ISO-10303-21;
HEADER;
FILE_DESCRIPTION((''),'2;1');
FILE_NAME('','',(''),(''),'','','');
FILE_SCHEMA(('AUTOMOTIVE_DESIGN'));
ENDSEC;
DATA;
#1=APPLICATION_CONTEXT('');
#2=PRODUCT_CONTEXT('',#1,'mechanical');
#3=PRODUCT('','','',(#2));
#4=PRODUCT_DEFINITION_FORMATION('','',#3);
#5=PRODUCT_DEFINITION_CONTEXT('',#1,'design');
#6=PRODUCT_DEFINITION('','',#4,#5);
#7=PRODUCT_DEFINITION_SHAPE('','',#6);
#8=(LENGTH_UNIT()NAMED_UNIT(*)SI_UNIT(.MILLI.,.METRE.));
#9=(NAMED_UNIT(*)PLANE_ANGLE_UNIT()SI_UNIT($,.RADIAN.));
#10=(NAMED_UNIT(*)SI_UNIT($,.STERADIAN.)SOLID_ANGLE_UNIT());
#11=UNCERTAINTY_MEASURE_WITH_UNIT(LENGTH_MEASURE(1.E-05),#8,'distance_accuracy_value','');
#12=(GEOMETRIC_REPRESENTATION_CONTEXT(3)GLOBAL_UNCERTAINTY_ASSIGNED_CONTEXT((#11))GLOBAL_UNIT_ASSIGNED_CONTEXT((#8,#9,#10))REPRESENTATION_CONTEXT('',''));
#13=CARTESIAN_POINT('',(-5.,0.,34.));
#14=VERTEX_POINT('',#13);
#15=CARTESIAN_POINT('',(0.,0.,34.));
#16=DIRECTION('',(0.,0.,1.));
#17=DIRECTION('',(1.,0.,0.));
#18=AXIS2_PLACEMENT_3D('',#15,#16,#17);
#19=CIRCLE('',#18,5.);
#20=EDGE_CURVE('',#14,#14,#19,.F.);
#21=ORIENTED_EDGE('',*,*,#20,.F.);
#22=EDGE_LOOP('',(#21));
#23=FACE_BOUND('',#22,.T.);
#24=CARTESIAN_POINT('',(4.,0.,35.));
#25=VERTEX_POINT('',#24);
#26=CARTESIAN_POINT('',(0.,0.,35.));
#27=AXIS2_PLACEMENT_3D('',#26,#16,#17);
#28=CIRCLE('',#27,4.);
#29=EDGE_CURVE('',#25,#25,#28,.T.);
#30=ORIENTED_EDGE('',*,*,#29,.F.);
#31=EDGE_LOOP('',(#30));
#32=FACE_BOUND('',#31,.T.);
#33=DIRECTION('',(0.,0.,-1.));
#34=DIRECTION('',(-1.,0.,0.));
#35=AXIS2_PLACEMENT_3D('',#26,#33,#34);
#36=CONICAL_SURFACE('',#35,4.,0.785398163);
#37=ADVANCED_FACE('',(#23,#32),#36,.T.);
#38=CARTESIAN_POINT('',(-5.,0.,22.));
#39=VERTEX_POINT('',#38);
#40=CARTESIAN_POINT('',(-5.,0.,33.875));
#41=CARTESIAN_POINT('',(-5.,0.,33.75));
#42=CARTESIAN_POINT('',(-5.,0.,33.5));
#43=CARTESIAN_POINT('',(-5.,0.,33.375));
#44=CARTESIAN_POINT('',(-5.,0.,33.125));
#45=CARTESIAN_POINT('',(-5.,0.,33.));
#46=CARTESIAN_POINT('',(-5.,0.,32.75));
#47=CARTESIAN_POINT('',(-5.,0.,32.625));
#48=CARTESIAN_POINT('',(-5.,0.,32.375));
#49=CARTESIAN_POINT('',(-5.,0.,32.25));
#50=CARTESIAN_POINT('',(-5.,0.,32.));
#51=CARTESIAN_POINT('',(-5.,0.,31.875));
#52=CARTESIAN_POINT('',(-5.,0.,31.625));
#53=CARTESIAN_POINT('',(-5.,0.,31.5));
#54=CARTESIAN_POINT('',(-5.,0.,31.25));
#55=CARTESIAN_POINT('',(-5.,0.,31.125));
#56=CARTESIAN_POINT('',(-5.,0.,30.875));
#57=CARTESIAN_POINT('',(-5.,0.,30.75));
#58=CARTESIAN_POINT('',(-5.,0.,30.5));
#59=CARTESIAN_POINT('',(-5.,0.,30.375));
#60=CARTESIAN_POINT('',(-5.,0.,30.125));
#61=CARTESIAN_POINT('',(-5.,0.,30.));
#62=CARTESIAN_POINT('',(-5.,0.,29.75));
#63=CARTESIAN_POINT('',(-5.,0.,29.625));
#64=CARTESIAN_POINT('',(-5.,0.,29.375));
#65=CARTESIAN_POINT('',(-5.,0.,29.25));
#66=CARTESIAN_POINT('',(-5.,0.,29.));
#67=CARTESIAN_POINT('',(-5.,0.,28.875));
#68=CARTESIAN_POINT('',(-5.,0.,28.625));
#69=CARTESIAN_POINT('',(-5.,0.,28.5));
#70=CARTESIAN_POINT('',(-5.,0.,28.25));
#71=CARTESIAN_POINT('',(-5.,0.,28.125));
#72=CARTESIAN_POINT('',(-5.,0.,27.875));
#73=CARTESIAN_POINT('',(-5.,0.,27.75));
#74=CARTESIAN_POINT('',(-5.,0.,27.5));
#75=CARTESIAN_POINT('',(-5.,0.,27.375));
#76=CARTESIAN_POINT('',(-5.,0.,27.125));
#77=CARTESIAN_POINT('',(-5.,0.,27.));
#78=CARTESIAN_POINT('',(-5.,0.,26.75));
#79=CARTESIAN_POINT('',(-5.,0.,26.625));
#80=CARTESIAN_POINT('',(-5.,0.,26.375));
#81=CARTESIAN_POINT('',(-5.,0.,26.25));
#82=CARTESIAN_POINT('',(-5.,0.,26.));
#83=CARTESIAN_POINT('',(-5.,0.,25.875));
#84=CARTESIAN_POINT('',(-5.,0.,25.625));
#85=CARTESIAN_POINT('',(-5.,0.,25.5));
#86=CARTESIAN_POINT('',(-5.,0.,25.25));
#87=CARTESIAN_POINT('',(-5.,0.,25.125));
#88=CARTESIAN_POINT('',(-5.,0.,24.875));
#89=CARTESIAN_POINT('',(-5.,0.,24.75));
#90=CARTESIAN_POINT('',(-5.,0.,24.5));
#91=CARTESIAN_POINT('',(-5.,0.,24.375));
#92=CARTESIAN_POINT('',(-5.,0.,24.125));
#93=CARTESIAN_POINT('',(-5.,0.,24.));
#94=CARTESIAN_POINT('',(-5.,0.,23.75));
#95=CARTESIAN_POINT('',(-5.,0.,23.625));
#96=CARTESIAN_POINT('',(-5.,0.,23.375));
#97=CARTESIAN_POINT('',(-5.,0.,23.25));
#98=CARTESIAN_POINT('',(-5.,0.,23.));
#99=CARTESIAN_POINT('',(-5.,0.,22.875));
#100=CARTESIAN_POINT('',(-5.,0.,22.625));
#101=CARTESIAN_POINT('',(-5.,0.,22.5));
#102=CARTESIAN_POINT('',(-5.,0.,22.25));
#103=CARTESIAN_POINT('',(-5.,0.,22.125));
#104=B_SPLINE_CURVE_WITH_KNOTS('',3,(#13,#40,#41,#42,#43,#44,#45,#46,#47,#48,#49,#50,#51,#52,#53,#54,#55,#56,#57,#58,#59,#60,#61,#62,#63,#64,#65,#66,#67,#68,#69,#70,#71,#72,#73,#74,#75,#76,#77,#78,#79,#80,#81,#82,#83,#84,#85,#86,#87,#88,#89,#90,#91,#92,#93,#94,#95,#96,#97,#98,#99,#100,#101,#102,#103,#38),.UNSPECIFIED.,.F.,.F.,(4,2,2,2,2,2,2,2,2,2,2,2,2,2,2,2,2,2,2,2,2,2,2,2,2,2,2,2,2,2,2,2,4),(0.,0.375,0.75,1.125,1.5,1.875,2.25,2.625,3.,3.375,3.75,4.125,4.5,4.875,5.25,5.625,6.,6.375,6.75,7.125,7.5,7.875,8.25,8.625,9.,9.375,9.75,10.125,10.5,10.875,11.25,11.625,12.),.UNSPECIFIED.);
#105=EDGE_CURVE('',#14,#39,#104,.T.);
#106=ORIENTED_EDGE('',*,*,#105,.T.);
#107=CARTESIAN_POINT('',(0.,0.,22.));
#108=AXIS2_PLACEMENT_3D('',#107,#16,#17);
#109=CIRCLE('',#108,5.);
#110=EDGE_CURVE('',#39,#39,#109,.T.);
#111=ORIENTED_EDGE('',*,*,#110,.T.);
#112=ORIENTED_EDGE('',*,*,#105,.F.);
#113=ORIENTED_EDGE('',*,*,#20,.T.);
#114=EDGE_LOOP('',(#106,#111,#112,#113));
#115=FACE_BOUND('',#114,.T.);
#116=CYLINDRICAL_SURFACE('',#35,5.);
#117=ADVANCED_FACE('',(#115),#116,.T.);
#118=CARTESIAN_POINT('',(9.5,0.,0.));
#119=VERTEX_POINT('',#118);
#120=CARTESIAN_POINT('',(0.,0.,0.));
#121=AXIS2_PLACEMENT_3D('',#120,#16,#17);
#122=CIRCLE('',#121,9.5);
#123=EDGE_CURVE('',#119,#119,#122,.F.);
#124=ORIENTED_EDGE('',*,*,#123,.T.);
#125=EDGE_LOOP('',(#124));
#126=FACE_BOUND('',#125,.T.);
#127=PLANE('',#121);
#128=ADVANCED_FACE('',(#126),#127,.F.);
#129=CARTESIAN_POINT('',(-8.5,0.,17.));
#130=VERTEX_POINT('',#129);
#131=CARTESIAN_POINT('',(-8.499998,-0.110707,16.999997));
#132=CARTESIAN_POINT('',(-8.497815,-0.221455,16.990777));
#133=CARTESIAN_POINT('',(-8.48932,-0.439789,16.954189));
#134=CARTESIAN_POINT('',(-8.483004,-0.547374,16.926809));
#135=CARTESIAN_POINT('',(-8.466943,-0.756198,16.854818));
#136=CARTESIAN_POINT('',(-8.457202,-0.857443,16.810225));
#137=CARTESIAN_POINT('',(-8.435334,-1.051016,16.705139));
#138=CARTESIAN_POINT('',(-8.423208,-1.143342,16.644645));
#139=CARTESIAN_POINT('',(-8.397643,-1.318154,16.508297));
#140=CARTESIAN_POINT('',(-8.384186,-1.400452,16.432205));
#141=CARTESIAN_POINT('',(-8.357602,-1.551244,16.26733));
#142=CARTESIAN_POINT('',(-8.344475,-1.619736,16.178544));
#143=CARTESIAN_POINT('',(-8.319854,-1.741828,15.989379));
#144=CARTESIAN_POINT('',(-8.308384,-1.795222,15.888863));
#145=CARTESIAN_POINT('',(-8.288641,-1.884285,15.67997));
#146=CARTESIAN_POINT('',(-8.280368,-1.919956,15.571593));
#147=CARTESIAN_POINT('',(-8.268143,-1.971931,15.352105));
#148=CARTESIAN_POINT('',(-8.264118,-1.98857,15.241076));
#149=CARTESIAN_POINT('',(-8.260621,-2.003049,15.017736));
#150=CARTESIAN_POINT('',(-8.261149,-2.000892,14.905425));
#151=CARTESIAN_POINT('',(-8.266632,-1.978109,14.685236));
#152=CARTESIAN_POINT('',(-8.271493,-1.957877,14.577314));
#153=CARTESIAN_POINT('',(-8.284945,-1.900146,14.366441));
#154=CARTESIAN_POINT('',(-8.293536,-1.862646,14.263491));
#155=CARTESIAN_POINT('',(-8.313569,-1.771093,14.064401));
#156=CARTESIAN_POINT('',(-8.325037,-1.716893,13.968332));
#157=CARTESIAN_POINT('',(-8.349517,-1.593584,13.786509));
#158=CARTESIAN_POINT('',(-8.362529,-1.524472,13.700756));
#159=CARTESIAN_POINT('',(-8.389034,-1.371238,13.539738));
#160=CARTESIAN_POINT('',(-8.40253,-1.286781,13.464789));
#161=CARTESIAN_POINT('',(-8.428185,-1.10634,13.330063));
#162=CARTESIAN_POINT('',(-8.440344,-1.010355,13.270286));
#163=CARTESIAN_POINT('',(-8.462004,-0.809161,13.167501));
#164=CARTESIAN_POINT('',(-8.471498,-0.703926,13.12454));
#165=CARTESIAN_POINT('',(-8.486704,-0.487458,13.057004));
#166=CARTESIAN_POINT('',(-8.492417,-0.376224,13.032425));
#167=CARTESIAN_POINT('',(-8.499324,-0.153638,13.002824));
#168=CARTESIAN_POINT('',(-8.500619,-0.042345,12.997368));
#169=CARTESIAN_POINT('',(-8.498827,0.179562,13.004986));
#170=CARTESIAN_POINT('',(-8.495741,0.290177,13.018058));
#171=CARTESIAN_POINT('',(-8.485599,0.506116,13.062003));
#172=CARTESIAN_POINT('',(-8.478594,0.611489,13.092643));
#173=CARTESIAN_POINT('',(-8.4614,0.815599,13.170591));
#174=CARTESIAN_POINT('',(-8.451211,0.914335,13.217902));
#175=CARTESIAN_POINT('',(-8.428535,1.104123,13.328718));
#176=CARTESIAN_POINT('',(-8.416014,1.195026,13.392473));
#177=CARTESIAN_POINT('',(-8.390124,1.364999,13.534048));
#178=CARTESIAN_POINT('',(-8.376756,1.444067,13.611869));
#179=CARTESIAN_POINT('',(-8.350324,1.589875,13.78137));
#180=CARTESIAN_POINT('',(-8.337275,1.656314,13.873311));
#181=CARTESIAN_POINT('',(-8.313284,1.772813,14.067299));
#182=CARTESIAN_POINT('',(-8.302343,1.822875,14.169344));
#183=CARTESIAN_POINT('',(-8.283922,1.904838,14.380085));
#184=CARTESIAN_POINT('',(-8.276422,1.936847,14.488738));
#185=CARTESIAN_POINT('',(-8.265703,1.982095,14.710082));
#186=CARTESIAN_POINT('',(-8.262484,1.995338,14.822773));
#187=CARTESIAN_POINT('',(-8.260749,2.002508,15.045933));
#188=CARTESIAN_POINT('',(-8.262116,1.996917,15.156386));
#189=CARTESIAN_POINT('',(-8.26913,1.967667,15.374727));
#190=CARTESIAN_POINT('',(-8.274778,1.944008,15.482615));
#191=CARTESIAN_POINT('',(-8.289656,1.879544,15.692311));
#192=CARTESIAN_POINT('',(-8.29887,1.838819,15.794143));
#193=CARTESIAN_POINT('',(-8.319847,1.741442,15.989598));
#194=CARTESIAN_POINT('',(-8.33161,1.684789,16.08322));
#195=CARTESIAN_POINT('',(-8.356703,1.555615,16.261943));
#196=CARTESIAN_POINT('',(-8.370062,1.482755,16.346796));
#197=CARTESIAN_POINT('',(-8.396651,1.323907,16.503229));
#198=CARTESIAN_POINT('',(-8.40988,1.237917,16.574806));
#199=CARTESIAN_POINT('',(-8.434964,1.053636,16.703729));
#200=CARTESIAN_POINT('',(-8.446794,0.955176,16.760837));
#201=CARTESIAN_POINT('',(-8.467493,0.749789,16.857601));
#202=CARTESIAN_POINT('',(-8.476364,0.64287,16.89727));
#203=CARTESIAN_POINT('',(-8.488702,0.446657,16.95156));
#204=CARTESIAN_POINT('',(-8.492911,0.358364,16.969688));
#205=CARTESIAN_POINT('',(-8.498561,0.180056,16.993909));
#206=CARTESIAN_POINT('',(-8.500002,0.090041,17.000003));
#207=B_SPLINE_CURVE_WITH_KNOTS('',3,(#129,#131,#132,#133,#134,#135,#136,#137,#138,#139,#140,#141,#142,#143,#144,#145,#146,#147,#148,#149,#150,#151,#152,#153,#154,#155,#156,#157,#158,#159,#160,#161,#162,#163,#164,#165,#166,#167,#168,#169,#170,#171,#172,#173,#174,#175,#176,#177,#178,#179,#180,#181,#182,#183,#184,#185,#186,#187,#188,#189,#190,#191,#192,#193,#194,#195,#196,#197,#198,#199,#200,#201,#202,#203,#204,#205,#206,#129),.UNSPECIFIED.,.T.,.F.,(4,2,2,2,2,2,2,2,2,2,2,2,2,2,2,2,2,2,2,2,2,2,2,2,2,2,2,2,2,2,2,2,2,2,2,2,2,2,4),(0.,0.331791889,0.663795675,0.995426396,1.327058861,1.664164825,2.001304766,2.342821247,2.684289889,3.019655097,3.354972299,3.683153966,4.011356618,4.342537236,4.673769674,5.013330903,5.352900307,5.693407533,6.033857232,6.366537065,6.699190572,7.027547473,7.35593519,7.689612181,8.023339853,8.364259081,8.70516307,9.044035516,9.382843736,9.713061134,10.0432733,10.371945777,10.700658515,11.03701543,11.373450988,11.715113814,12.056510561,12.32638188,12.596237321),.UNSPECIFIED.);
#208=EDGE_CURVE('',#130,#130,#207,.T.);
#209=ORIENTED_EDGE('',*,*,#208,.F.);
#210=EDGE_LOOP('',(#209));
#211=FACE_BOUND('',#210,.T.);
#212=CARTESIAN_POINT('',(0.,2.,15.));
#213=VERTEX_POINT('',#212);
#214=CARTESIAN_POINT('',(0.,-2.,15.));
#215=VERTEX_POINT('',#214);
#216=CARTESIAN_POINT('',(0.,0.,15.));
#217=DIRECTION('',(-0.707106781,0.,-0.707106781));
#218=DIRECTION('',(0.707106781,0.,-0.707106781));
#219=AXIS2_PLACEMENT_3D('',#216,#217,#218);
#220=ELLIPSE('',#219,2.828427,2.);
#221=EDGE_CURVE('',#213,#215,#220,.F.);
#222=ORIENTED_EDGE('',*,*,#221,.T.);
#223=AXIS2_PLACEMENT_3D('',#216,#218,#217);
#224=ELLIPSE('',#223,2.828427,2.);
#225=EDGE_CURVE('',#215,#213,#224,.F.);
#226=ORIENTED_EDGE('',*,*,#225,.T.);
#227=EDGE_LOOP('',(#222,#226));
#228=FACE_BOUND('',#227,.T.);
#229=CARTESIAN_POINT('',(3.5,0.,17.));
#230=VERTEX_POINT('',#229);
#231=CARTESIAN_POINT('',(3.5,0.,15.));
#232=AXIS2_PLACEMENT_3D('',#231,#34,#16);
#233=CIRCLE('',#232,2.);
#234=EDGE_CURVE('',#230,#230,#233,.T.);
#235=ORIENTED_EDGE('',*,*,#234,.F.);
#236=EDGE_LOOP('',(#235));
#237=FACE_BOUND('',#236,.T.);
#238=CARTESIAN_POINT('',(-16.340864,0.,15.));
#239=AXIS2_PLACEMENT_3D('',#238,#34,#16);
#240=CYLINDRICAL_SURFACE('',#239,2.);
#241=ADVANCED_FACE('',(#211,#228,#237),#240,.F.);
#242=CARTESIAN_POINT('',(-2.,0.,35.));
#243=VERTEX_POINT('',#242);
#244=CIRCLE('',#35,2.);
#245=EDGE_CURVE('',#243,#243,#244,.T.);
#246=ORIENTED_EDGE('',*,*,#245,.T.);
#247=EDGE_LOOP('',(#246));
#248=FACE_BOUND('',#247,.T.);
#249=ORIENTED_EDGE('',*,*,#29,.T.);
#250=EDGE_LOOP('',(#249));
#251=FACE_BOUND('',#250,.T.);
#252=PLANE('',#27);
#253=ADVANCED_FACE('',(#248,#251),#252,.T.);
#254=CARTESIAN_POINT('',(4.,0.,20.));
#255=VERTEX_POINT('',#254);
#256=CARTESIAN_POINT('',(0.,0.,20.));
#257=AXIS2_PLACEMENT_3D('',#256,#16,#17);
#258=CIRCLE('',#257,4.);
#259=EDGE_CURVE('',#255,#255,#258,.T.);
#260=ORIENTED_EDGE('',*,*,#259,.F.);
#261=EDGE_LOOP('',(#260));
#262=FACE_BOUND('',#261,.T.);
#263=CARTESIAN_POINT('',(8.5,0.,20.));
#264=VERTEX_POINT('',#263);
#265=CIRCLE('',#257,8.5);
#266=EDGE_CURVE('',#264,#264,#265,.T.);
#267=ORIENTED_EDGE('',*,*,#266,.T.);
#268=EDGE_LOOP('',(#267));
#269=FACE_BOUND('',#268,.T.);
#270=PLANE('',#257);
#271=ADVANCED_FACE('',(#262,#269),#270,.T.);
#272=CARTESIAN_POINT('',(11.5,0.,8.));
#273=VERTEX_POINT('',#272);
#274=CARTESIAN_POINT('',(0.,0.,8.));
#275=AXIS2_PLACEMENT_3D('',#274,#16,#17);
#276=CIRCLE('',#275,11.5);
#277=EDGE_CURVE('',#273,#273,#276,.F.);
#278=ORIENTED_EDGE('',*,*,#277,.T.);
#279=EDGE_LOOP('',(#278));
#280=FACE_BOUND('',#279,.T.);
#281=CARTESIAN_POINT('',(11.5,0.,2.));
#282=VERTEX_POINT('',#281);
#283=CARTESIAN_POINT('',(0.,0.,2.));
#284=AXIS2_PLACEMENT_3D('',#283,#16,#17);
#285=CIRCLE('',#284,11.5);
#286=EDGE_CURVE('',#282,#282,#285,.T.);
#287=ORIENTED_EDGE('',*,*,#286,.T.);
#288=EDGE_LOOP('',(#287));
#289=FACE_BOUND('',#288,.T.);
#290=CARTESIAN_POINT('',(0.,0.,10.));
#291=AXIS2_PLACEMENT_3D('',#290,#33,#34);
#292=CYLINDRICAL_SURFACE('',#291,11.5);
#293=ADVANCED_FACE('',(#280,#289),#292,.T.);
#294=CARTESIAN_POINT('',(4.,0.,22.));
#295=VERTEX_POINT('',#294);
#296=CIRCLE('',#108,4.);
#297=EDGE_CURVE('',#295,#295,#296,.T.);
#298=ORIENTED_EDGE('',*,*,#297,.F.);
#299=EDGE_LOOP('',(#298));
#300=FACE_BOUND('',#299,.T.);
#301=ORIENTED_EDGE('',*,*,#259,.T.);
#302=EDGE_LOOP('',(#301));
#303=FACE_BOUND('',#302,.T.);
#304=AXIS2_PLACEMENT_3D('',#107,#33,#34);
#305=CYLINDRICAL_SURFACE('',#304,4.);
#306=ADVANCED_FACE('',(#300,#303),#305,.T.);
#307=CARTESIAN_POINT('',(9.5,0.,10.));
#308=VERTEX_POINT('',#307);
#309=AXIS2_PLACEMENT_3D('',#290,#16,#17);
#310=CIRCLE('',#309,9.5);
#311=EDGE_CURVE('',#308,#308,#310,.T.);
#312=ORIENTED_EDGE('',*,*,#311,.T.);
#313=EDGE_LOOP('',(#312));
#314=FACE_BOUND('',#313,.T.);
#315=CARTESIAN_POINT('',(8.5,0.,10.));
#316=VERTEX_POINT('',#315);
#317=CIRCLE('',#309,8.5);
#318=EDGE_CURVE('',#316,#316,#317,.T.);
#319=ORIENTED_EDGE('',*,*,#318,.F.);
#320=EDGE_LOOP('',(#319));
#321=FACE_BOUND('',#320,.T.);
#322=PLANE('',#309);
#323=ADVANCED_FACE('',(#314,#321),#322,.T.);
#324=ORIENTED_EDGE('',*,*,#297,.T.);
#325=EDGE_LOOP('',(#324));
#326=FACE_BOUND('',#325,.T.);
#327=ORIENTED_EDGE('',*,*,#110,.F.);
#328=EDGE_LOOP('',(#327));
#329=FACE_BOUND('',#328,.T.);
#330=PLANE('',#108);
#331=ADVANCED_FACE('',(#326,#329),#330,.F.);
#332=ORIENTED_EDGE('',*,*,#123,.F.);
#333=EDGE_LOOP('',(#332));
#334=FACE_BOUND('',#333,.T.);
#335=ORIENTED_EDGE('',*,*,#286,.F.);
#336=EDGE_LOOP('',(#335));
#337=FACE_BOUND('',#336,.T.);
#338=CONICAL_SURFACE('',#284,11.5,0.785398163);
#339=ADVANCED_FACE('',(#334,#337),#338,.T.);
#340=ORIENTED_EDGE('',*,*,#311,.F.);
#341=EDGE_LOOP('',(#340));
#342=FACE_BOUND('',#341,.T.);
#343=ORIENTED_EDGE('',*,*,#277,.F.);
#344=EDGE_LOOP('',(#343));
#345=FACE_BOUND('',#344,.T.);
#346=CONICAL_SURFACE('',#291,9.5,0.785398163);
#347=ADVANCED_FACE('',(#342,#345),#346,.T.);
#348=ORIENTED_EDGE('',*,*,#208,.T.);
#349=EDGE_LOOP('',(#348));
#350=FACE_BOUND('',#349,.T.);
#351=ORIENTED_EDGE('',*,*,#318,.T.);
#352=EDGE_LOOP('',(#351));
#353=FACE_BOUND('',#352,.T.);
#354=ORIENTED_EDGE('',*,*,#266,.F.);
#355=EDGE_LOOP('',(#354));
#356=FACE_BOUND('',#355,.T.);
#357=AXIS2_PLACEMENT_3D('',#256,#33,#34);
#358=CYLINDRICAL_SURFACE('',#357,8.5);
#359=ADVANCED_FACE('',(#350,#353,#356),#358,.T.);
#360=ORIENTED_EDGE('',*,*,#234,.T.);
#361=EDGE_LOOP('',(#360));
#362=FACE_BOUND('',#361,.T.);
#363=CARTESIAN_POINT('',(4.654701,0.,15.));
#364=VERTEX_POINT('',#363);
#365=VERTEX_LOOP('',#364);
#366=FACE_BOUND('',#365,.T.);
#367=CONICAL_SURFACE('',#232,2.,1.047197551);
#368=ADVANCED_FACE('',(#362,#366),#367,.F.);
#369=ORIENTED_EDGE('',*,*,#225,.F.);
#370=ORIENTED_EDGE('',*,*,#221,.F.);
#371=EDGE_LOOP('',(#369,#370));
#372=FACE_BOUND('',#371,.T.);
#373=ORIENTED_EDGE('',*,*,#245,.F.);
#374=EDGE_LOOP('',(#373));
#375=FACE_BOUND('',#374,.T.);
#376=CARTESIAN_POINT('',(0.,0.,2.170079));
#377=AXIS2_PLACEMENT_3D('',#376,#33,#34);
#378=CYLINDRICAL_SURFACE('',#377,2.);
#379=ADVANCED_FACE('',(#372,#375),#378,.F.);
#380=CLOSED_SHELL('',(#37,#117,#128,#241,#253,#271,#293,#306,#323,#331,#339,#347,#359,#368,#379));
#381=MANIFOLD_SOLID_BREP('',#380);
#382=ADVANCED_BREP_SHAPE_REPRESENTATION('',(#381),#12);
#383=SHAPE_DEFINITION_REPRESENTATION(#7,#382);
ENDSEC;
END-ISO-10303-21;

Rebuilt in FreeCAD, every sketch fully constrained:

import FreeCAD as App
import Part
import Sketcher
Q = App.Units.Quantity


def edges_at(feature, points):
    """Names of the edges that pass closest to the given points."""
    edges = feature.Shape.Edges
    near = lambda p: min(range(len(edges)), key=lambda i: edges[i].distToShape(Part.Vertex(*p))[0])
    return sorted({f"Edge{near(p) + 1}" for p in points})


def add_polygon(sketch, points):
    """Adds a closed chain of lines whose ends are joined by coincident constraints."""
    first, n = sketch.GeometryCount, len(points)
    for a, b in zip(points, points[1:] + points[:1]):
        sketch.addGeometry(Part.LineSegment(App.Vector(*a, 0), App.Vector(*b, 0)), False)
    for i in range(n):
        sketch.addConstraint(Sketcher.Constraint("Coincident", first + i, 2, first + (i + 1) % n, 1))

doc = App.newDocument("Part")
body = doc.addObject("PartDesign::Body", "Body")

# Sketch on XY plane
sketch1 = body.newObject("Sketcher::SketchObject", "Sketch")
sketch1.AttachmentSupport = (doc.getObject("XY_Plane"), [""])
sketch1.MapMode = "FlatFace"
sketch1.addGeometry(Part.Circle(App.Vector(0, 0, 0), App.Vector(0, 0, 1), 11.5), False)
sketch1.addConstraint(Sketcher.Constraint("Coincident", 0, 3, -1, 1))
sketch1.addConstraint(Sketcher.Constraint("Diameter", 0, Q("23 mm")))
pad1 = body.newObject("PartDesign::Pad", "Pad")
pad1.Profile = sketch1
pad1.Length = 10

# Sketch on XY plane
sketch2 = body.newObject("Sketcher::SketchObject", "Sketch001")
sketch2.AttachmentSupport = (doc.getObject("XY_Plane"), [""])
sketch2.MapMode = "FlatFace"
sketch2.AttachmentOffset = App.Placement(App.Vector(0, 0, 10), App.Rotation())
sketch2.addGeometry(Part.Circle(App.Vector(0, 0, 0), App.Vector(0, 0, 1), 8.5), False)
sketch2.addConstraint(Sketcher.Constraint("Coincident", 0, 3, -1, 1))
sketch2.addConstraint(Sketcher.Constraint("Diameter", 0, Q("17 mm")))
pad2 = body.newObject("PartDesign::Pad", "Pad001")
pad2.Profile = sketch2
pad2.Length = 10

# Sketch on XY plane
sketch3 = body.newObject("Sketcher::SketchObject", "Sketch002")
sketch3.AttachmentSupport = (doc.getObject("XY_Plane"), [""])
sketch3.MapMode = "FlatFace"
sketch3.AttachmentOffset = App.Placement(App.Vector(0, 0, 20), App.Rotation())
sketch3.addGeometry(Part.Circle(App.Vector(0, 0, 0), App.Vector(0, 0, 1), 4), False)
sketch3.addConstraint(Sketcher.Constraint("Coincident", 0, 3, -1, 1))
sketch3.addConstraint(Sketcher.Constraint("Diameter", 0, Q("8 mm")))
pad3 = body.newObject("PartDesign::Pad", "Pad002")
pad3.Profile = sketch3
pad3.Length = 2

# Sketch on XY plane
sketch4 = body.newObject("Sketcher::SketchObject", "Sketch003")
sketch4.AttachmentSupport = (doc.getObject("XY_Plane"), [""])
sketch4.MapMode = "FlatFace"
sketch4.AttachmentOffset = App.Placement(App.Vector(0, 0, 22), App.Rotation())
sketch4.addGeometry(Part.Circle(App.Vector(0, 0, 0), App.Vector(0, 0, 1), 5), False)
sketch4.addConstraint(Sketcher.Constraint("Coincident", 0, 3, -1, 1))
sketch4.addConstraint(Sketcher.Constraint("Diameter", 0, Q("10 mm")))
pad4 = body.newObject("PartDesign::Pad", "Pad003")
pad4.Profile = sketch4
pad4.Length = 13

# Sketch on XZ plane
sketch5 = body.newObject("Sketcher::SketchObject", "Sketch004")
sketch5.AttachmentSupport = (doc.getObject("XZ_Plane"), [""])
sketch5.MapMode = "FlatFace"
add_polygon(sketch5, [(0, 35), (2, 35), (2, 15), (0, 13.845299)])  # lines 0-3
sketch5.addConstraint(Sketcher.Constraint("Horizontal", 0))
sketch5.addConstraint(Sketcher.Constraint("Vertical", 1))
sketch5.addConstraint(Sketcher.Constraint("Vertical", 3))
sketch5.addConstraint(Sketcher.Constraint("PointOnObject", 2, 2, -2))
sketch5.addConstraint(Sketcher.Constraint("DistanceX", 0, 1, 0, 2, Q("2 mm")))
sketch5.addConstraint(Sketcher.Constraint("DistanceY", 1, 2, 1, 1, Q("20 mm")))
sketch5.addConstraint(Sketcher.Constraint("Angle", 2, Q("-150 deg")))
sketch5.addConstraint(Sketcher.Constraint("DistanceY", -1, 1, 0, 2, Q("35 mm")))
groove = body.newObject("PartDesign::Groove", "Groove")
groove.Profile = sketch5
groove.ReferenceAxis = (sketch5, ["V_Axis"])
groove.Angle = 360

# Sketch on XZ plane
sketch6 = body.newObject("Sketcher::SketchObject", "Sketch005")
sketch6.AttachmentSupport = (doc.getObject("XZ_Plane"), [""])
sketch6.MapMode = "FlatFace"
add_polygon(sketch6, [(-8.5, 15), (-8.5, 17), (3.5, 17), (4.654701, 15)])  # lines 0-3
sketch6.addGeometry(Part.LineSegment(App.Vector(-8.5, 15, 0), App.Vector(4.654701, 15, 0)), True)  # axis
sketch6.addConstraint(Sketcher.Constraint("Vertical", 0))
sketch6.addConstraint(Sketcher.Constraint("Horizontal", 1))
sketch6.addConstraint(Sketcher.Constraint("Horizontal", 3))
sketch6.addConstraint(Sketcher.Constraint("Horizontal", 4))
sketch6.addConstraint(Sketcher.Constraint("Coincident", 4, 1, 3, 2))
sketch6.addConstraint(Sketcher.Constraint("Equal", 3, 4))
sketch6.addConstraint(Sketcher.Constraint("DistanceX", 1, 1, 1, 2, Q("12 mm")))
sketch6.addConstraint(Sketcher.Constraint("DistanceY", 0, 1, 0, 2, Q("2 mm")))
sketch6.addConstraint(Sketcher.Constraint("Angle", 2, Q("-60 deg")))
sketch6.addConstraint(Sketcher.Constraint("DistanceY", -1, 1, 0, 2, Q("17 mm")))
sketch6.addConstraint(Sketcher.Constraint("DistanceX", 0, 2, -1, 1, Q("8.5 mm")))
groove2 = body.newObject("PartDesign::Groove", "Groove001")
groove2.Profile = sketch6
groove2.ReferenceAxis = (sketch6, ["Axis0"])
groove2.Angle = 360
doc.recompute()

chamfer = body.newObject("PartDesign::Chamfer", "Chamfer")
chamfer.Base = (groove2, edges_at(groove2, [(-11.5, 0, 0), (-11.5, 0, 10)]))
chamfer.Size = 2
doc.recompute()

chamfer2 = body.newObject("PartDesign::Chamfer", "Chamfer001")
chamfer2.Base = (chamfer, edges_at(chamfer, [(5, 0, 35)]))
chamfer2.Size = 1

doc.recompute()
